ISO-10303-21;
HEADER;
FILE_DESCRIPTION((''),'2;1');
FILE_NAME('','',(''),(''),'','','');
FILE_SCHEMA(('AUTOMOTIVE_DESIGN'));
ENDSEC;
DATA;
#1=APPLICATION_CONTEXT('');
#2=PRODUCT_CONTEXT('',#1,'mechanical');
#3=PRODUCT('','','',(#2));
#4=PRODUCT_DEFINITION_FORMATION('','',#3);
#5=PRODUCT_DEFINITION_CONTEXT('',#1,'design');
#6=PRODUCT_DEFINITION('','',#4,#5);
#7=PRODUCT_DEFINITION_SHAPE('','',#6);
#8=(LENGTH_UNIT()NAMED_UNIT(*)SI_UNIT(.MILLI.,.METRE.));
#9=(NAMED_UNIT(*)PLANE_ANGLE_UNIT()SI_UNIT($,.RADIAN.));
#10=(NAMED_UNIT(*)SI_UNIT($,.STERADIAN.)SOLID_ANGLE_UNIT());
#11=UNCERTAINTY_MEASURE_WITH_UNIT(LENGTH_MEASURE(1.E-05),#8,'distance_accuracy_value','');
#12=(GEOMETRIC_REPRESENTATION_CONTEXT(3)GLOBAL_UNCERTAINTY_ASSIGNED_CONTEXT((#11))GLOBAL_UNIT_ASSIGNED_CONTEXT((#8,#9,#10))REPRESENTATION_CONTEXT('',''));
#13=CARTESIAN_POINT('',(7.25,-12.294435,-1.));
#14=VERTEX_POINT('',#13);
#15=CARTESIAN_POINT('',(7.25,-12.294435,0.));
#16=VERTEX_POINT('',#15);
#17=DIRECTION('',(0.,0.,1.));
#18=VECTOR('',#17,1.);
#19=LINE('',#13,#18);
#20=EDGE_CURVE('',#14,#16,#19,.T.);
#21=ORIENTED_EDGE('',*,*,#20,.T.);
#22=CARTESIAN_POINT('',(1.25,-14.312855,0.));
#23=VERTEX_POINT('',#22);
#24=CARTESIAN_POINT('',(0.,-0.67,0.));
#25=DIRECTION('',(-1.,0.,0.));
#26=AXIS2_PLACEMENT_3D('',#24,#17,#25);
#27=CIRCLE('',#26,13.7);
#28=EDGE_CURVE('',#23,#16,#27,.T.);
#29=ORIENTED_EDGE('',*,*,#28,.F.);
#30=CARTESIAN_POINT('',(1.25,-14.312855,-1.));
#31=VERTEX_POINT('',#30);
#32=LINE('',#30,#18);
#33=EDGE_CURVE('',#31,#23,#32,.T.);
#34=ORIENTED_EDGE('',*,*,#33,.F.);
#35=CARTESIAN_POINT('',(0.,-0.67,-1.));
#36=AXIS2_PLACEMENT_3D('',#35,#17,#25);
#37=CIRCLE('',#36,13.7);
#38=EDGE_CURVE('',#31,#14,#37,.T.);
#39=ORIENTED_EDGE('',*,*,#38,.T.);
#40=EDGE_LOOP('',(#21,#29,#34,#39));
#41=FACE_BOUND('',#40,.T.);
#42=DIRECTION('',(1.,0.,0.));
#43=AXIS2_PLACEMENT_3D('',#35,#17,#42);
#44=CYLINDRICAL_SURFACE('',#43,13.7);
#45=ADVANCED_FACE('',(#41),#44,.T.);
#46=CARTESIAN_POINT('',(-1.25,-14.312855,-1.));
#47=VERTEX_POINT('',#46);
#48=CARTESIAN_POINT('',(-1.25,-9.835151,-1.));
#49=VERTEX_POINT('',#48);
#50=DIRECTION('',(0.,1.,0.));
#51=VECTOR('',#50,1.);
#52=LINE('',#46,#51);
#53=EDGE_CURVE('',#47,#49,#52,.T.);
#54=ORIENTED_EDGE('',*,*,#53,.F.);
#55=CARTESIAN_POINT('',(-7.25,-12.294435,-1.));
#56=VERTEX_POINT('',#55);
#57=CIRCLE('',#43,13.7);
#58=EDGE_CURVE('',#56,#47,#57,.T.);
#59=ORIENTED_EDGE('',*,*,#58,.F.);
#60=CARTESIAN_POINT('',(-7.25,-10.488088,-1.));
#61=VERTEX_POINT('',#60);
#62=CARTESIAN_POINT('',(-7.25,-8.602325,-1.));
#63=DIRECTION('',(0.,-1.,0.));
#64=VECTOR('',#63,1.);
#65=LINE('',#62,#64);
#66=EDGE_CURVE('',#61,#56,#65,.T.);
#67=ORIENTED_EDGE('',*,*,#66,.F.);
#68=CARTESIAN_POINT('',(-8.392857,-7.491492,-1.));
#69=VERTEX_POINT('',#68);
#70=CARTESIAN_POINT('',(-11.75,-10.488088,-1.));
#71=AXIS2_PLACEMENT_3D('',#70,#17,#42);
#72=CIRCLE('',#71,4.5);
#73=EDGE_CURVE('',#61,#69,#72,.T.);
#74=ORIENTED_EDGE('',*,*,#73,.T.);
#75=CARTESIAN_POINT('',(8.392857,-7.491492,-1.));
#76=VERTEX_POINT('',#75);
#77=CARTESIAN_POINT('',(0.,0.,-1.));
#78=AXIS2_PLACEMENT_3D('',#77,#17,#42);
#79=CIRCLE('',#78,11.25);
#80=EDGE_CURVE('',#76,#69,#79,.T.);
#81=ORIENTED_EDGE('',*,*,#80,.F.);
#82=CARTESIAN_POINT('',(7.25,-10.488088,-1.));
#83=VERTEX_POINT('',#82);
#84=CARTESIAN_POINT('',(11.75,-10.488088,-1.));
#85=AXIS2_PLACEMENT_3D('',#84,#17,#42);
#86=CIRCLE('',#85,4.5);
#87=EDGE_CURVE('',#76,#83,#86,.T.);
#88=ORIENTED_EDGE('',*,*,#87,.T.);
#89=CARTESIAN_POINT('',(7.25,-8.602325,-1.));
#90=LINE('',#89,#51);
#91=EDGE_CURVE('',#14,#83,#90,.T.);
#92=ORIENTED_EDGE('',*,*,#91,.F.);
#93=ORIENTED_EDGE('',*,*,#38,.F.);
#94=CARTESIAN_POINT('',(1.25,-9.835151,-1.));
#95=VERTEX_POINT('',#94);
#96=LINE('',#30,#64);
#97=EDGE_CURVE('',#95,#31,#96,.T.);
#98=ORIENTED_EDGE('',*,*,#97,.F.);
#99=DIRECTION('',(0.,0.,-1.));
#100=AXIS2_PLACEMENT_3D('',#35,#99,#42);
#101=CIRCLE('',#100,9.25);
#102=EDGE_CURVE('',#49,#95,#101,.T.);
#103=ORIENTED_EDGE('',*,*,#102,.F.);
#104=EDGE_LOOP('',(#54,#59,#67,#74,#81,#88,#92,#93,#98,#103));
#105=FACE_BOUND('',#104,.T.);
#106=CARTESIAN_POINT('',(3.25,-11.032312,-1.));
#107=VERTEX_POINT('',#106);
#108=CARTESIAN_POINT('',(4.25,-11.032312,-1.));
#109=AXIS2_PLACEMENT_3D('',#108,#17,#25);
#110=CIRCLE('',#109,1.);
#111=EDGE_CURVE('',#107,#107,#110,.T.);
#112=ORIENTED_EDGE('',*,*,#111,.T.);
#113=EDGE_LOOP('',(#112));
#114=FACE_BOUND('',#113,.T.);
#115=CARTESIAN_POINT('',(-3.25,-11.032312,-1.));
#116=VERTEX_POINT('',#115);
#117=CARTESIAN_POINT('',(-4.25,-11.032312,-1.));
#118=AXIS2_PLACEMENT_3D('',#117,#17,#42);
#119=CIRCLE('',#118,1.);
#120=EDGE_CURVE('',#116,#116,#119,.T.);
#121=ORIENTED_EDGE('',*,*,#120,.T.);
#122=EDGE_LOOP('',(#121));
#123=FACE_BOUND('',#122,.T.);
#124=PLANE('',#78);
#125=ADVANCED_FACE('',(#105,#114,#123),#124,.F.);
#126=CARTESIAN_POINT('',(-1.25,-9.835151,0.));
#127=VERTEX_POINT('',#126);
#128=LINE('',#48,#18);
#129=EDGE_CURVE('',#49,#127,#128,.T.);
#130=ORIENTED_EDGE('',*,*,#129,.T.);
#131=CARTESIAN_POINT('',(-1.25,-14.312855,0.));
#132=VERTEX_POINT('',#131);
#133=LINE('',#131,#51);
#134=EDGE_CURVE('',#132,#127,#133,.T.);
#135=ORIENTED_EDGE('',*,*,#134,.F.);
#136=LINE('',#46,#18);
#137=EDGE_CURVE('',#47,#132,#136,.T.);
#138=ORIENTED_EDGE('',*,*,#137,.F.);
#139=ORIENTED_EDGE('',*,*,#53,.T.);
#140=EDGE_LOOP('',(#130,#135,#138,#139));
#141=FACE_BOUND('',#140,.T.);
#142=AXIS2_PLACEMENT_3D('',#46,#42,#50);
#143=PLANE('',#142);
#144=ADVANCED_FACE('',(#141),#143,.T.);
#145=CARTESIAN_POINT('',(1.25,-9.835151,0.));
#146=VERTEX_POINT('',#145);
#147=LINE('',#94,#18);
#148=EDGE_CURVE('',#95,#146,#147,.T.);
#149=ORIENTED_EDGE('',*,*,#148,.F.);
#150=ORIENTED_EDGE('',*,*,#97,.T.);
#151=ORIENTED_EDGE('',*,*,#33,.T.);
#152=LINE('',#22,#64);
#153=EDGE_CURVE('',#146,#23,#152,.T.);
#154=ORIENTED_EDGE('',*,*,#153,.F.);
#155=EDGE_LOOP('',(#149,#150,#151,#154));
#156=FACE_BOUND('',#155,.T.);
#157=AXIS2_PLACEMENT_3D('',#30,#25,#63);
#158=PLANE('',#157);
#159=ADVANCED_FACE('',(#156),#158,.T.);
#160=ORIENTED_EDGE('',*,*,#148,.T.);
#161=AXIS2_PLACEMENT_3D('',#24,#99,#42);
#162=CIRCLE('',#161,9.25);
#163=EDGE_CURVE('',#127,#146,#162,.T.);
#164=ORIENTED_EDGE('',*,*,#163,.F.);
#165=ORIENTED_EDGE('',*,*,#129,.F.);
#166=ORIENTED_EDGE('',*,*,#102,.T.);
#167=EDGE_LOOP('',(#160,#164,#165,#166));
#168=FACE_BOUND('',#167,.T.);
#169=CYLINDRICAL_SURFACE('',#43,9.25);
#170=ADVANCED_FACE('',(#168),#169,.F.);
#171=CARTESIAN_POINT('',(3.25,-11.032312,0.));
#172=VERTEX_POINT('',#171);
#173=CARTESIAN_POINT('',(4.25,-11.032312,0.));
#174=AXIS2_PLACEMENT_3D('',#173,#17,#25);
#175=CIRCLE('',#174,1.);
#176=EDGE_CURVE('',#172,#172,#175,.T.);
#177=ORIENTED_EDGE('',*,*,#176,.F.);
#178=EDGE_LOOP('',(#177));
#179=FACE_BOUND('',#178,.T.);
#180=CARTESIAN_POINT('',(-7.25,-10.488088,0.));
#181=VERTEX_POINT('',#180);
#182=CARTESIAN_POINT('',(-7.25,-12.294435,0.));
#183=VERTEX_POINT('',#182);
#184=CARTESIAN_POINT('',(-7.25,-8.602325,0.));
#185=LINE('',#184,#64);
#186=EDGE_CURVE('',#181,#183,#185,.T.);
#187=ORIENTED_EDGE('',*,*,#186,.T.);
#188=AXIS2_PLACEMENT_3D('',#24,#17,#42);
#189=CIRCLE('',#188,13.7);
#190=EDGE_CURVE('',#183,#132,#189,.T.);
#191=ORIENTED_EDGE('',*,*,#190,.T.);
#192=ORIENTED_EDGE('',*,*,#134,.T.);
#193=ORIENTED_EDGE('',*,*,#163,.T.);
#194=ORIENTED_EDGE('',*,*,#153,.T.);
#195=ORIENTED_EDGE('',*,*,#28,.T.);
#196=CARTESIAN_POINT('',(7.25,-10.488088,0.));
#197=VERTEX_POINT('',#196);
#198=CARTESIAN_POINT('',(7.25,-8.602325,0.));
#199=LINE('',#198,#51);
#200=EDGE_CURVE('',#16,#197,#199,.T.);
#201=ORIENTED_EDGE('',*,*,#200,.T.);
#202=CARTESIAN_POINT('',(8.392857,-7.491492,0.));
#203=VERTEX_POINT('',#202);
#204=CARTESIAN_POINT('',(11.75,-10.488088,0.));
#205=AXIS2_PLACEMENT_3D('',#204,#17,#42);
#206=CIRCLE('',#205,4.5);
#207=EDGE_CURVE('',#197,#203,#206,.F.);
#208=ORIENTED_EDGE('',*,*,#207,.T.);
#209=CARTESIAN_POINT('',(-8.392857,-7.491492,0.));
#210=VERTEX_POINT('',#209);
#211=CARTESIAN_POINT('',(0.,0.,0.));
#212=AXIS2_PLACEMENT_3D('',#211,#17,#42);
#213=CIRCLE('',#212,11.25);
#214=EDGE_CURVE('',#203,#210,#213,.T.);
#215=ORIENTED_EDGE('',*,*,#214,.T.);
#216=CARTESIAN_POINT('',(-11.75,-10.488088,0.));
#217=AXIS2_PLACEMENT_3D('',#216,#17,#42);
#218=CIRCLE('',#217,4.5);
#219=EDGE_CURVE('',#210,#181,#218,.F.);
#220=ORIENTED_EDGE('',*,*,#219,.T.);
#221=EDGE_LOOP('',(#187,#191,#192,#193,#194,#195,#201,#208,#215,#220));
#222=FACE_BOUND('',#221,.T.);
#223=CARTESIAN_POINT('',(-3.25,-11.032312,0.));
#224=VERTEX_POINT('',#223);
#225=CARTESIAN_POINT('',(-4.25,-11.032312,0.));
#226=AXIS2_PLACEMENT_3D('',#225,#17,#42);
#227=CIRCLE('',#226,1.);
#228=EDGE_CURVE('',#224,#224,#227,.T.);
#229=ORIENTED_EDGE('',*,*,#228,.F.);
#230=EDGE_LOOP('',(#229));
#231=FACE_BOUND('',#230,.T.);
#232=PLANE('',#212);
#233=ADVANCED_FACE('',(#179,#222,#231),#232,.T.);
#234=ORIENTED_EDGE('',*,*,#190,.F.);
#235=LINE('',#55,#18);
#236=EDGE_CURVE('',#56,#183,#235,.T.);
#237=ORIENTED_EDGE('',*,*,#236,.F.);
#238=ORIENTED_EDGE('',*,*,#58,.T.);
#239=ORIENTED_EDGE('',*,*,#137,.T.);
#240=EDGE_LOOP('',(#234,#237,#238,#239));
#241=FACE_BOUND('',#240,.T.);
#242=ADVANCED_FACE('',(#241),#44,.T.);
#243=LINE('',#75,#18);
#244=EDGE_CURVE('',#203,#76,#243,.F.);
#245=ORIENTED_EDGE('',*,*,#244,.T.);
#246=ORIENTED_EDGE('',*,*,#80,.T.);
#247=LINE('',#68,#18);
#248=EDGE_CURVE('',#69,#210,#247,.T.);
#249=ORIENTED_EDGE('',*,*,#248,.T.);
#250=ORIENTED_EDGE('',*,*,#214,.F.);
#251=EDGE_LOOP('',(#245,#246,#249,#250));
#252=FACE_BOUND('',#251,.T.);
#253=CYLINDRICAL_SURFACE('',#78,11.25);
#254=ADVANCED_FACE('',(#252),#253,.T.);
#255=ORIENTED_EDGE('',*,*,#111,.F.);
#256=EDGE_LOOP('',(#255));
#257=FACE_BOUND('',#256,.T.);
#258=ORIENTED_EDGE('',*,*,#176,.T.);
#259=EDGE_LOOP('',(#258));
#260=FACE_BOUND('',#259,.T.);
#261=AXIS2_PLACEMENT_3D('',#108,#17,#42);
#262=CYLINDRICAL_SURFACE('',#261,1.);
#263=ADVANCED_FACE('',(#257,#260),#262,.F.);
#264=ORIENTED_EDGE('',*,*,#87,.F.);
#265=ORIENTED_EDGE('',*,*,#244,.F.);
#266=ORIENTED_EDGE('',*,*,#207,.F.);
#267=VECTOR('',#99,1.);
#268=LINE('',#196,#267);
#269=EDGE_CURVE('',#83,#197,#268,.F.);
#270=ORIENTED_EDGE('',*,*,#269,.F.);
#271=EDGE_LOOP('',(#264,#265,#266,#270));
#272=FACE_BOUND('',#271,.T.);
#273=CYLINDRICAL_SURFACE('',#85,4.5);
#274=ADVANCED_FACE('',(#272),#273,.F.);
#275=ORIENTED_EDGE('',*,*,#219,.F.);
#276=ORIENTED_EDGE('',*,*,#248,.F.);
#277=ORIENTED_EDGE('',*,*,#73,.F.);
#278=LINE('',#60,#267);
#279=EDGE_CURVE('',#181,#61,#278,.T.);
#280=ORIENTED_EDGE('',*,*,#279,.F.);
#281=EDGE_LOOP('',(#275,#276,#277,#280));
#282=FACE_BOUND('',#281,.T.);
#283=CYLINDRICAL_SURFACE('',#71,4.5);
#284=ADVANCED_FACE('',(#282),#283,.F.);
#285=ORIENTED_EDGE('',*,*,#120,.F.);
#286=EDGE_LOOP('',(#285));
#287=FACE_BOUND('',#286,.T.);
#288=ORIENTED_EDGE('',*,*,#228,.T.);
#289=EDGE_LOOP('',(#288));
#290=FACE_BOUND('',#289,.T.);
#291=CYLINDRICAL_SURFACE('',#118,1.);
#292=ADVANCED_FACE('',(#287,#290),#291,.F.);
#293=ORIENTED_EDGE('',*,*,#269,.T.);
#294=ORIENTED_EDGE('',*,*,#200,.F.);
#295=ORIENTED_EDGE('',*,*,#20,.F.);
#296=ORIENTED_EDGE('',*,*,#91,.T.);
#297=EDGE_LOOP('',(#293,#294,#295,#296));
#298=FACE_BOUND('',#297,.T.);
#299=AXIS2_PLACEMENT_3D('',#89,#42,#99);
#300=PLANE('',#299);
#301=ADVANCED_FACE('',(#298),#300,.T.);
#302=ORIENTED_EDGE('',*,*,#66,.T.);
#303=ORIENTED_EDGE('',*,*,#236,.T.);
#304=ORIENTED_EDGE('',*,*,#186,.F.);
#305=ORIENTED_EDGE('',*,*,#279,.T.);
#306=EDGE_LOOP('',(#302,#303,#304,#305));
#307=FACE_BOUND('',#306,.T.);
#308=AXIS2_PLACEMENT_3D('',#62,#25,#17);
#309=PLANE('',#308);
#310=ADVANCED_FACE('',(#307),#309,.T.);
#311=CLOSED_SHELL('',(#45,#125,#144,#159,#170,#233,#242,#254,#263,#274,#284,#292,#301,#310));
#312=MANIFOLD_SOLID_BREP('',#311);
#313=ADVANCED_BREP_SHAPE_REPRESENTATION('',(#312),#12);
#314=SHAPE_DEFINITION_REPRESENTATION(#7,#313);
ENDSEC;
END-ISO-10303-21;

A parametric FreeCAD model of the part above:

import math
import FreeCAD as App
import Part
import Sketcher

V = App.Vector


def edges_at(feature, points):
    """Names of the edges that pass closest to the given points."""
    edges = feature.Shape.Edges
    near = lambda p: min(range(len(edges)), key=lambda i: edges[i].distToShape(Part.Vertex(*p))[0])
    return sorted({f"Edge{near(p) + 1}" for p in points})

doc = App.newDocument("Part")
body = doc.addObject("PartDesign::Body", "Body")

sketch1 = body.newObject("Sketcher::SketchObject", "Sketch")
sketch1.AttachmentSupport = (doc.getObject("XY_Plane"), [""])
sketch1.MapMode = "FlatFace"
sketch1.addGeometry([
    Part.LineSegment(V(-1.2, -14.3, 0), V(-1.2, -9.8, 0)),
    Part.ArcOfCircle(Part.Circle(V(0, -0.7, 0), V(0, 0, 1), 9.2), math.radians(-82), math.radians(262)),
    Part.LineSegment(V(1.2, -9.8, 0), V(1.2, -14.3, 0)),
    Part.ArcOfCircle(Part.Circle(V(0, -0.7, 0), V(0, 0, 1), 13.7), math.radians(-85), math.radians(-58)),
    Part.LineSegment(V(7.2, -12.3, 0), V(7.2, -8.6, 0)),
    Part.ArcOfCircle(Part.Circle(V(0, 0, 0), V(0, 0, 1), 11.2), math.radians(-50), math.radians(230)),
    Part.LineSegment(V(-7.2, -8.6, 0), V(-7.2, -12.3, 0)),
    Part.ArcOfCircle(Part.Circle(V(0, -0.7, 0), V(0, 0, 1), 13.7), math.radians(-122), math.radians(-95)),
    Part.Circle(V(-4.2, -11, 0), V(0, 0, 1), 1),
    Part.Circle(V(4.2, -11, 0), V(0, 0, 1), 1),
], False)
sketch1.addConstraint([
    Sketcher.Constraint("Coincident", 0, 2, 1, 2),
    Sketcher.Constraint("Coincident", 1, 1, 2, 1),
    Sketcher.Constraint("Coincident", 2, 2, 3, 1),
    Sketcher.Constraint("Coincident", 3, 2, 4, 1),
    Sketcher.Constraint("Coincident", 4, 2, 5, 1),
    Sketcher.Constraint("Coincident", 5, 2, 6, 1),
    Sketcher.Constraint("Coincident", 6, 2, 7, 1),
    Sketcher.Constraint("Coincident", 7, 2, 0, 1),
    Sketcher.Constraint("Vertical", 0),
    Sketcher.Constraint("Vertical", 2),
    Sketcher.Constraint("Vertical", 4),
    Sketcher.Constraint("Vertical", 6),
    Sketcher.Constraint("Coincident", 5, 3, -1, 1),
    Sketcher.Constraint("Coincident", 3, 3, 1, 3),
    Sketcher.Constraint("Coincident", 7, 3, 1, 3),
    Sketcher.Constraint("Equal", 3, 7),
    Sketcher.Constraint("Equal", 8, 9),
    Sketcher.Constraint("Symmetric", 8, 3, 9, 3, -2),
    Sketcher.Constraint("Symmetric", 0, 2, 1, 1, -2),
    Sketcher.Constraint("Horizontal", 4, 2, 5, 2),
    Sketcher.Constraint("Diameter", 8, 2.0),
    Sketcher.Constraint("Radius", 3, 13.7),
    Sketcher.Constraint("Radius", 1, 9.25),
    Sketcher.Constraint("Radius", 5, 11.25),
    Sketcher.Constraint("DistanceX", 8, 3, 0, 2, 3.0),
    Sketcher.Constraint("DistanceX", 9, 3, 3, 2, 3.0),
    Sketcher.Constraint("DistanceX", 8, 3, 9, 3, 8.5),
    Sketcher.Constraint("DistanceY", 1, 3, -1, 1, 0.67),
    Sketcher.Constraint("DistanceY", 8, 3, -1, 1, 11.032312),
])
pad1 = body.newObject("PartDesign::Pad", "Pad")
pad1.Profile = sketch1
pad1.Length = 1
pad1.Reversed = True
doc.recompute()

fillet = body.newObject("PartDesign::Fillet", "Fillet")
fillet.Base = (pad1, edges_at(pad1, [(7.25, -8.602, -0.5), (-7.25, -8.602, -0.5)]))
fillet.Radius = 4.5

doc.recompute()
